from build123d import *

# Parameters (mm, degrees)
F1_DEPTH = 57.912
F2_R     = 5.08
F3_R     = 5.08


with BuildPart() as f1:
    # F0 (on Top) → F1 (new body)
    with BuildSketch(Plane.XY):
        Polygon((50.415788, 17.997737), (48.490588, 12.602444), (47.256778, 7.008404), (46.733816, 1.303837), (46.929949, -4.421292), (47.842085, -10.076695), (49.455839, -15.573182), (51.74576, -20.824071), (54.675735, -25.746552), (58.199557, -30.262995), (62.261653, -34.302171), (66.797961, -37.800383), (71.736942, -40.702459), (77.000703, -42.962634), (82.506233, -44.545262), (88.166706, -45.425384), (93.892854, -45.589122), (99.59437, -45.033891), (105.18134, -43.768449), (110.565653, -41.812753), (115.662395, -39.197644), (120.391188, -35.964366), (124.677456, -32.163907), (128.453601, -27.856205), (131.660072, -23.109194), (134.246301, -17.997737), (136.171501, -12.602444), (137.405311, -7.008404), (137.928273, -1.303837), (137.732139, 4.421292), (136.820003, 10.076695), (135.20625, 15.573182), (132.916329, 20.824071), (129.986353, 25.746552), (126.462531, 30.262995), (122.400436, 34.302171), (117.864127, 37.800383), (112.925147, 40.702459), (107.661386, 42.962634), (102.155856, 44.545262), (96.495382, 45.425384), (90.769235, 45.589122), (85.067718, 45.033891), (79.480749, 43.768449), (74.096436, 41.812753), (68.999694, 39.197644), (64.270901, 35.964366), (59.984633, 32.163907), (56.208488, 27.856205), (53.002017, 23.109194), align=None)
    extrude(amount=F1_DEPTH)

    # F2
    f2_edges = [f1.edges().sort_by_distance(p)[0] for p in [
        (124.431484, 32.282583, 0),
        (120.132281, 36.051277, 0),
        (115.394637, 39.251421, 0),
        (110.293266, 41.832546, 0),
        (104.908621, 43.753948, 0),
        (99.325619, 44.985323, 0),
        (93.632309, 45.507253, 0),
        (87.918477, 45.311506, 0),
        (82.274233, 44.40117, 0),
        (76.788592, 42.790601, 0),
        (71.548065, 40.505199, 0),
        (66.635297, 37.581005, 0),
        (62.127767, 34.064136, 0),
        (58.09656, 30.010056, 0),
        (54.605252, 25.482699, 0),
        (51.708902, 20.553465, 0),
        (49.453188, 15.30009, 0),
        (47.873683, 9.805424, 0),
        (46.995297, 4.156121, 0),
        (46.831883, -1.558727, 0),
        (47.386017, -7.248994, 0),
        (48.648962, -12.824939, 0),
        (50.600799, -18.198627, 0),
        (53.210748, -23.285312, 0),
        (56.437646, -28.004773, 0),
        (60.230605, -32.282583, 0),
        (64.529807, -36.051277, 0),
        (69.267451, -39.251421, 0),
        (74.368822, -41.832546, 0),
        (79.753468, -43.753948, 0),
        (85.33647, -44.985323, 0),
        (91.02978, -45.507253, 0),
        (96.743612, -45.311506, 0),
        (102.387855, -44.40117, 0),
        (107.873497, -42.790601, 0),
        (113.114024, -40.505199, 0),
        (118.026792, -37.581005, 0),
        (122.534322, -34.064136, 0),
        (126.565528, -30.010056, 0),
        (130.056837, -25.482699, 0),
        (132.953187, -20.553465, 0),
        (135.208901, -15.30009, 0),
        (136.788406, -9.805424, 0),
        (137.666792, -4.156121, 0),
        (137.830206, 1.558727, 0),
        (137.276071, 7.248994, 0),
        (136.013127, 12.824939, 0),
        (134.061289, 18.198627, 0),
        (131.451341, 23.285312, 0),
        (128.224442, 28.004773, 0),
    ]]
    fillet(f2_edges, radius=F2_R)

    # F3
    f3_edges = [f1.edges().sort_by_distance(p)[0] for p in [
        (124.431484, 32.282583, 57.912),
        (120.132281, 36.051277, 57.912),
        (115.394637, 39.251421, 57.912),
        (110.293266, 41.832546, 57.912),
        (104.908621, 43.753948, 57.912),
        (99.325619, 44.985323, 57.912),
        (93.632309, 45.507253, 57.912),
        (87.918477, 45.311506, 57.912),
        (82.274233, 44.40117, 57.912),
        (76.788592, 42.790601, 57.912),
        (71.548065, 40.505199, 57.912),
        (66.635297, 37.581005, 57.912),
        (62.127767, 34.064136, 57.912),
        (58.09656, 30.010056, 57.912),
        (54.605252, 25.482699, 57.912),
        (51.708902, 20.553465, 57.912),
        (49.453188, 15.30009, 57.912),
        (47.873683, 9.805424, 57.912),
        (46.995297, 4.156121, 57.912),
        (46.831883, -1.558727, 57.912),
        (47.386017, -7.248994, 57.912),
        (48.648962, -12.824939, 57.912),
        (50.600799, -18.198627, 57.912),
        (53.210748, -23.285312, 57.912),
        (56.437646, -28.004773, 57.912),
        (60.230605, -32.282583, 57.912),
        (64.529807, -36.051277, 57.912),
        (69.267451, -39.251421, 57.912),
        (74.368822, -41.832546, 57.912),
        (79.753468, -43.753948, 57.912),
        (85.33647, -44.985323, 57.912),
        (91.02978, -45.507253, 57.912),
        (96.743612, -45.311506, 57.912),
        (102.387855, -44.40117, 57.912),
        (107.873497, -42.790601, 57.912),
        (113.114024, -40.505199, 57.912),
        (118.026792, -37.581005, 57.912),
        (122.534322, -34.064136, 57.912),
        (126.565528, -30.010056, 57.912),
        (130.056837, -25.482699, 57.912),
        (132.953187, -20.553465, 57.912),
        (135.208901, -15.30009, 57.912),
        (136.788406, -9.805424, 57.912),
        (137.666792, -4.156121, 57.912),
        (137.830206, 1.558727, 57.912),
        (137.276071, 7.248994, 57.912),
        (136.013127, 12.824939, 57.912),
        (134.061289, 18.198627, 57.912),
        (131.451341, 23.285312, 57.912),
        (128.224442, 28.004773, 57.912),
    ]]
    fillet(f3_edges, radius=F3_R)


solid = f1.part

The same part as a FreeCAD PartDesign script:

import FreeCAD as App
import Part
import Sketcher

V = App.Vector
Q = App.Units.Quantity


def edges_at(feature, points):
    """Names of the edges that pass closest to the given points."""
    edges = feature.Shape.Edges
    near = lambda p: min(range(len(edges)), key=lambda i: edges[i].distToShape(Part.Vertex(*p))[0])
    return sorted({f"Edge{near(p) + 1}" for p in points})

doc = App.newDocument("Part")
body = doc.addObject("PartDesign::Body", "Body")

# Sketch on XY plane
sketch1 = doc.addObject("Sketcher::SketchObject", "Sketch")
body.addObject(sketch1)
sketch1.AttachmentSupport = (doc.XY_Plane, [""])
sketch1.MapMode = "FlatFace"
sketch1.addGeometry([
    Part.LineSegment(V(50.415788, 17.997737, 0), V(48.490588, 12.602444, 0)),  # 0
    Part.LineSegment(V(48.490588, 12.602444, 0), V(47.256778, 7.008404, 0)),  # 1
    Part.LineSegment(V(47.256778, 7.008404, 0), V(46.733816, 1.303837, 0)),  # 2
    Part.LineSegment(V(46.733816, 1.303837, 0), V(46.929949, -4.421292, 0)),  # 3
    Part.LineSegment(V(46.929949, -4.421292, 0), V(47.842085, -10.076695, 0)),  # 4
    Part.LineSegment(V(47.842085, -10.076695, 0), V(49.455839, -15.573182, 0)),  # 5
    Part.LineSegment(V(49.455839, -15.573182, 0), V(51.74576, -20.824071, 0)),  # 6
    Part.LineSegment(V(51.74576, -20.824071, 0), V(54.675735, -25.746552, 0)),  # 7
    Part.LineSegment(V(54.675735, -25.746552, 0), V(58.199557, -30.262995, 0)),  # 8
    Part.LineSegment(V(58.199557, -30.262995, 0), V(62.261653, -34.302171, 0)),  # 9
    Part.LineSegment(V(62.261653, -34.302171, 0), V(66.797961, -37.800383, 0)),  # 10
    Part.LineSegment(V(66.797961, -37.800383, 0), V(71.736942, -40.702459, 0)),  # 11
    Part.LineSegment(V(71.736942, -40.702459, 0), V(77.000703, -42.962634, 0)),  # 12
    Part.LineSegment(V(77.000703, -42.962634, 0), V(82.506233, -44.545262, 0)),  # 13
    Part.LineSegment(V(82.506233, -44.545262, 0), V(88.166706, -45.425384, 0)),  # 14
    Part.LineSegment(V(88.166706, -45.425384, 0), V(93.892854, -45.589122, 0)),  # 15
    Part.LineSegment(V(93.892854, -45.589122, 0), V(99.59437, -45.033891, 0)),  # 16
    Part.LineSegment(V(99.59437, -45.033891, 0), V(105.18134, -43.768449, 0)),  # 17
    Part.LineSegment(V(105.18134, -43.768449, 0), V(110.565653, -41.812753, 0)),  # 18
    Part.LineSegment(V(110.565653, -41.812753, 0), V(115.662395, -39.197644, 0)),  # 19
    Part.LineSegment(V(115.662395, -39.197644, 0), V(120.391188, -35.964366, 0)),  # 20
    Part.LineSegment(V(120.391188, -35.964366, 0), V(124.677456, -32.163907, 0)),  # 21
    Part.LineSegment(V(124.677456, -32.163907, 0), V(128.453601, -27.856205, 0)),  # 22
    Part.LineSegment(V(128.453601, -27.856205, 0), V(131.660072, -23.109194, 0)),  # 23
    Part.LineSegment(V(131.660072, -23.109194, 0), V(134.246301, -17.997737, 0)),  # 24
    Part.LineSegment(V(134.246301, -17.997737, 0), V(136.171501, -12.602444, 0)),  # 25
    Part.LineSegment(V(136.171501, -12.602444, 0), V(137.405311, -7.008404, 0)),  # 26
    Part.LineSegment(V(137.405311, -7.008404, 0), V(137.928273, -1.303837, 0)),  # 27
    Part.LineSegment(V(137.928273, -1.303837, 0), V(137.732139, 4.421292, 0)),  # 28
    Part.LineSegment(V(137.732139, 4.421292, 0), V(136.820003, 10.076695, 0)),  # 29
    Part.LineSegment(V(136.820003, 10.076695, 0), V(135.20625, 15.573182, 0)),  # 30
    Part.LineSegment(V(135.20625, 15.573182, 0), V(132.916329, 20.824071, 0)),  # 31
    Part.LineSegment(V(132.916329, 20.824071, 0), V(129.986353, 25.746552, 0)),  # 32
    Part.LineSegment(V(129.986353, 25.746552, 0), V(126.462531, 30.262995, 0)),  # 33
    Part.LineSegment(V(126.462531, 30.262995, 0), V(122.400436, 34.302171, 0)),  # 34
    Part.LineSegment(V(122.400436, 34.302171, 0), V(117.864127, 37.800383, 0)),  # 35
    Part.LineSegment(V(117.864127, 37.800383, 0), V(112.925147, 40.702459, 0)),  # 36
    Part.LineSegment(V(112.925147, 40.702459, 0), V(107.661386, 42.962634, 0)),  # 37
    Part.LineSegment(V(107.661386, 42.962634, 0), V(102.155856, 44.545262, 0)),  # 38
    Part.LineSegment(V(102.155856, 44.545262, 0), V(96.495382, 45.425384, 0)),  # 39
    Part.LineSegment(V(96.495382, 45.425384, 0), V(90.769235, 45.589122, 0)),  # 40
    Part.LineSegment(V(90.769235, 45.589122, 0), V(85.067718, 45.033891, 0)),  # 41
    Part.LineSegment(V(85.067718, 45.033891, 0), V(79.480749, 43.768449, 0)),  # 42
    Part.LineSegment(V(79.480749, 43.768449, 0), V(74.096436, 41.812753, 0)),  # 43
    Part.LineSegment(V(74.096436, 41.812753, 0), V(68.999694, 39.197644, 0)),  # 44
    Part.LineSegment(V(68.999694, 39.197644, 0), V(64.270901, 35.964366, 0)),  # 45
    Part.LineSegment(V(64.270901, 35.964366, 0), V(59.984633, 32.163907, 0)),  # 46
    Part.LineSegment(V(59.984633, 32.163907, 0), V(56.208488, 27.856205, 0)),  # 47
    Part.LineSegment(V(56.208488, 27.856205, 0), V(53.002017, 23.109194, 0)),  # 48
    Part.LineSegment(V(53.002017, 23.109194, 0), V(50.415788, 17.997737, 0)),  # 49
], False)
sketch1.addConstraint([
    Sketcher.Constraint("Coincident", 0, 2, 1, 1),
    Sketcher.Constraint("Coincident", 1, 2, 2, 1),
    Sketcher.Constraint("Coincident", 2, 2, 3, 1),
    Sketcher.Constraint("Coincident", 3, 2, 4, 1),
    Sketcher.Constraint("Coincident", 4, 2, 5, 1),
    Sketcher.Constraint("Coincident", 5, 2, 6, 1),
    Sketcher.Constraint("Coincident", 6, 2, 7, 1),
    Sketcher.Constraint("Coincident", 7, 2, 8, 1),
    Sketcher.Constraint("Coincident", 8, 2, 9, 1),
    Sketcher.Constraint("Coincident", 9, 2, 10, 1),
    Sketcher.Constraint("Coincident", 10, 2, 11, 1),
    Sketcher.Constraint("Coincident", 11, 2, 12, 1),
    Sketcher.Constraint("Coincident", 12, 2, 13, 1),
    Sketcher.Constraint("Coincident", 13, 2, 14, 1),
    Sketcher.Constraint("Coincident", 14, 2, 15, 1),
    Sketcher.Constraint("Coincident", 15, 2, 16, 1),
    Sketcher.Constraint("Coincident", 16, 2, 17, 1),
    Sketcher.Constraint("Coincident", 17, 2, 18, 1),
    Sketcher.Constraint("Coincident", 18, 2, 19, 1),
    Sketcher.Constraint("Coincident", 19, 2, 20, 1),
    Sketcher.Constraint("Coincident", 20, 2, 21, 1),
    Sketcher.Constraint("Coincident", 21, 2, 22, 1),
    Sketcher.Constraint("Coincident", 22, 2, 23, 1),
    Sketcher.Constraint("Coincident", 23, 2, 24, 1),
    Sketcher.Constraint("Coincident", 24, 2, 25, 1),
    Sketcher.Constraint("Coincident", 25, 2, 26, 1),
    Sketcher.Constraint("Coincident", 26, 2, 27, 1),
    Sketcher.Constraint("Coincident", 27, 2, 28, 1),
    Sketcher.Constraint("Coincident", 28, 2, 29, 1),
    Sketcher.Constraint("Coincident", 29, 2, 30, 1),
    Sketcher.Constraint("Coincident", 30, 2, 31, 1),
    Sketcher.Constraint("Coincident", 31, 2, 32, 1),
    Sketcher.Constraint("Coincident", 32, 2, 33, 1),
    Sketcher.Constraint("Coincident", 33, 2, 34, 1),
    Sketcher.Constraint("Coincident", 34, 2, 35, 1),
    Sketcher.Constraint("Coincident", 35, 2, 36, 1),
    Sketcher.Constraint("Coincident", 36, 2, 37, 1),
    Sketcher.Constraint("Coincident", 37, 2, 38, 1),
    Sketcher.Constraint("Coincident", 38, 2, 39, 1),
    Sketcher.Constraint("Coincident", 39, 2, 40, 1),
    Sketcher.Constraint("Coincident", 40, 2, 41, 1),
    Sketcher.Constraint("Coincident", 41, 2, 42, 1),
    Sketcher.Constraint("Coincident", 42, 2, 43, 1),
    Sketcher.Constraint("Coincident", 43, 2, 44, 1),
    Sketcher.Constraint("Coincident", 44, 2, 45, 1),
    Sketcher.Constraint("Coincident", 45, 2, 46, 1),
    Sketcher.Constraint("Coincident", 46, 2, 47, 1),
    Sketcher.Constraint("Coincident", 47, 2, 48, 1),
    Sketcher.Constraint("Coincident", 48, 2, 49, 1),
    Sketcher.Constraint("Coincident", 49, 2, 0, 1),
    Sketcher.Constraint("DistanceX", -1, 1, 22, 2, Q("128.453601 mm")),
    Sketcher.Constraint("DistanceX", -1, 1, 24, 2, Q("134.246301 mm")),
    Sketcher.Constraint("DistanceX", -1, 1, 25, 2, Q("136.171501 mm")),
    Sketcher.Constraint("DistanceX", -1, 1, 45, 2, Q("64.270901 mm")),
    Sketcher.Constraint("DistanceY", 4, 2, 1, 2, Q("17.085099 mm")),
    Sketcher.Constraint("DistanceY", 8, 2, 4, 2, Q("20.1863 mm")),
    Sketcher.Constraint("DistanceY", 9, 2, 6, 2, Q("13.4781 mm")),
    Sketcher.Constraint("DistanceX", 6, 2, 10, 2, Q("15.052201 mm")),
    Sketcher.Constraint("DistanceY", 10, 2, 5, 2, Q("22.227201 mm")),
    Sketcher.Constraint("DistanceY", 14, 2, 10, 2, Q("7.625001 mm")),
    Sketcher.Constraint("DistanceX", 15, 2, 18, 2, Q("16.672799 mm")),
    Sketcher.Constraint("DistanceY", 22, 2, 26, 2, Q("20.847801 mm")),
    Sketcher.Constraint("DistanceY", 24, 2, 27, 2, Q("16.6939 mm")),
    Sketcher.Constraint("DistanceX", 23, 2, 27, 2, Q("6.268201 mm")),
    Sketcher.Constraint("DistanceY", 26, 2, 29, 2, Q("17.085099 mm")),
    Sketcher.Constraint("DistanceY", 29, 2, 33, 2, Q("20.1863 mm")),
    Sketcher.Constraint("DistanceY", 31, 2, 34, 2, Q("13.4781 mm")),
    Sketcher.Constraint("DistanceX", 35, 2, 31, 2, Q("15.052202 mm")),
    Sketcher.Constraint("DistanceY", 30, 2, 35, 2, Q("22.227201 mm")),
    Sketcher.Constraint("DistanceY", 35, 2, 39, 2, Q("7.625001 mm")),
    Sketcher.Constraint("DistanceX", 43, 2, 40, 2, Q("16.672799 mm")),
    Sketcher.Constraint("DistanceX", 0, 2, 47, 2, Q("7.7179 mm")),
    Sketcher.Constraint("DistanceX", 0, 2, 49, 2, Q("1.9252 mm")),
    Sketcher.Constraint("Distance", 0, Q("5.728489 mm")),
    Sketcher.Constraint("Distance", 4, Q("5.728488 mm")),
    Sketcher.Constraint("Distance", 8, Q("5.728488 mm")),
    Sketcher.Constraint("Distance", 10, Q("5.728488 mm")),
    Sketcher.Constraint("Distance", 11, Q("5.728488 mm")),
    Sketcher.Constraint("Distance", 15, Q("5.728489 mm")),
    Sketcher.Constraint("Distance", 17, Q("5.728488 mm")),
    Sketcher.Constraint("Distance", 21, Q("5.728489 mm")),
    Sketcher.Constraint("Distance", 25, Q("5.728489 mm")),
    Sketcher.Constraint("Distance", 29, Q("5.728488 mm")),
    Sketcher.Constraint("Distance", 32, Q("5.728488 mm")),
    Sketcher.Constraint("Distance", 33, Q("5.728488 mm")),
    Sketcher.Constraint("Distance", 35, Q("5.728489 mm")),
    Sketcher.Constraint("Distance", 39, Q("5.728489 mm")),
    Sketcher.Constraint("Distance", 41, Q("5.728488 mm")),
    Sketcher.Constraint("Distance", 46, Q("5.728489 mm")),
    Sketcher.Constraint("DistanceX", -1, 1, 0, 2, Q("48.490588 mm")),
    Sketcher.Constraint("DistanceX", -1, 1, 3, 2, Q("46.929949 mm")),
    Sketcher.Constraint("DistanceX", -1, 1, 5, 2, Q("49.455839 mm")),
    Sketcher.Constraint("DistanceY", 5, 2, -1, 1, Q("15.573182 mm")),
    Sketcher.Constraint("DistanceX", -1, 1, 6, 2, Q("51.74576 mm")),
    Sketcher.Constraint("DistanceY", 6, 2, -1, 1, Q("20.824071 mm")),
    Sketcher.Constraint("DistanceX", -1, 1, 11, 2, Q("71.736942 mm")),
    Sketcher.Constraint("DistanceX", -1, 1, 16, 2, Q("99.59437 mm")),
    Sketcher.Constraint("DistanceY", 16, 2, -1, 1, Q("45.033891 mm")),
    Sketcher.Constraint("DistanceX", -1, 1, 17, 2, Q("105.18134 mm")),
    Sketcher.Constraint("DistanceX", -1, 1, 20, 2, Q("120.391188 mm")),
    Sketcher.Constraint("DistanceX", -1, 1, 26, 2, Q("137.405311 mm")),
    Sketcher.Constraint("DistanceX", -1, 1, 28, 2, Q("137.732139 mm")),
    Sketcher.Constraint("DistanceX", -1, 1, 30, 2, Q("135.20625 mm")),
    Sketcher.Constraint("DistanceY", -1, 1, 30, 2, Q("15.573182 mm")),
    Sketcher.Constraint("DistanceX", -1, 1, 31, 2, Q("132.916329 mm")),
    Sketcher.Constraint("DistanceY", -1, 1, 31, 2, Q("20.824071 mm")),
    Sketcher.Constraint("DistanceX", -1, 1, 33, 2, Q("126.462531 mm")),
    Sketcher.Constraint("DistanceY", -1, 1, 36, 2, Q("40.702459 mm")),
    Sketcher.Constraint("DistanceX", -1, 1, 41, 2, Q("85.067718 mm")),
    Sketcher.Constraint("DistanceY", -1, 1, 41, 2, Q("45.033891 mm")),
    Sketcher.Constraint("DistanceX", -1, 1, 42, 2, Q("79.480749 mm")),
    Sketcher.Constraint("DistanceY", -1, 1, 42, 2, Q("43.768449 mm")),
    Sketcher.Constraint("DistanceX", 1, 2, 0, 2, Q("1.23381 mm")),
    Sketcher.Constraint("DistanceY", 1, 2, 0, 2, Q("5.59404 mm")),
    Sketcher.Constraint("DistanceX", 2, 2, 1, 2, Q("0.522962 mm")),
    Sketcher.Constraint("DistanceY", 3, 2, 2, 2, Q("5.725129 mm")),
    Sketcher.Constraint("DistanceX", 2, 2, 4, 2, Q("1.108269 mm")),
    Sketcher.Constraint("DistanceY", 5, 2, 3, 2, Q("11.15189 mm")),
    Sketcher.Constraint("DistanceY", 7, 2, 6, 2, Q("4.922481 mm")),
    Sketcher.Constraint("DistanceX", 4, 2, 7, 2, Q("6.83365 mm")),
    Sketcher.Constraint("DistanceX", 11, 2, 12, 2, Q("5.263761 mm")),
    Sketcher.Constraint("DistanceY", 12, 2, 10, 2, Q("5.162251 mm")),
    Sketcher.Constraint("DistanceX", 12, 2, 13, 2, Q("5.50553 mm")),
    Sketcher.Constraint("DistanceY", 13, 2, 10, 2, Q("6.744879 mm")),
    Sketcher.Constraint("DistanceY", 15, 2, 14, 2, Q("0.163738 mm")),
    Sketcher.Constraint("DistanceX", 13, 2, 15, 2, Q("11.386621 mm")),
    Sketcher.Constraint("DistanceY", 15, 2, 18, 2, Q("3.776369 mm")),
    Sketcher.Constraint("DistanceY", 18, 2, 19, 2, Q("2.615109 mm")),
    Sketcher.Constraint("DistanceX", 15, 2, 19, 2, Q("21.769541 mm")),
    Sketcher.Constraint("DistanceX", 20, 2, 21, 2, Q("4.286268 mm")),
    Sketcher.Constraint("DistanceY", 17, 2, 21, 2, Q("11.604542 mm")),
    Sketcher.Constraint("DistanceY", 20, 2, 22, 2, Q("8.108161 mm")),
    Sketcher.Constraint("DistanceX", 22, 2, 23, 2, Q("3.206471 mm")),
    Sketcher.Constraint("DistanceY", 22, 2, 23, 2, Q("4.747011 mm")),
    Sketcher.Constraint("DistanceY", 21, 2, 24, 2, Q("14.16617 mm")),
    Sketcher.Constraint("DistanceY", 27, 2, 28, 2, Q("5.725129 mm")),
    Sketcher.Constraint("DistanceX", 36, 2, 35, 2, Q("4.93898 mm")),
    Sketcher.Constraint("DistanceX", 37, 2, 36, 2, Q("5.263761 mm")),
    Sketcher.Constraint("DistanceY", 35, 2, 37, 2, Q("5.162251 mm")),
    Sketcher.Constraint("DistanceX", 38, 2, 37, 2, Q("5.50553 mm")),
    Sketcher.Constraint("DistanceY", 35, 2, 38, 2, Q("6.744879 mm")),
    Sketcher.Constraint("DistanceY", 39, 2, 40, 2, Q("0.163738 mm")),
    Sketcher.Constraint("DistanceY", 43, 2, 40, 2, Q("3.776369 mm")),
    Sketcher.Constraint("DistanceX", 44, 2, 43, 2, Q("5.096742 mm")),
    Sketcher.Constraint("DistanceY", 44, 2, 43, 2, Q("2.615109 mm")),
    Sketcher.Constraint("DistanceY", 46, 2, 45, 2, Q("3.800459 mm")),
    Sketcher.Constraint("DistanceY", 46, 2, 42, 2, Q("11.604542 mm")),
    Sketcher.Constraint("DistanceY", 47, 2, 45, 2, Q("8.108161 mm")),
    Sketcher.Constraint("DistanceX", 48, 2, 47, 2, Q("3.206471 mm")),
    Sketcher.Constraint("DistanceY", 48, 2, 47, 2, Q("4.747011 mm")),
])
pad1 = doc.addObject("PartDesign::Pad", "Pad")
body.addObject(pad1)
pad1.Profile = sketch1
pad1.Length = Q("2.28 in")
doc.recompute()

fillet = doc.addObject("PartDesign::Fillet", "Fillet")
body.addObject(fillet)
fillet.Base = (pad1, edges_at(pad1, [
    (124.431, 32.283, 0),
    (120.132, 36.051, 0),
    (115.395, 39.251, 0),
    (110.293, 41.833, 0),
    (104.909, 43.754, 0),
    (99.326, 44.985, 0),
    (93.632, 45.507, 0),
    (87.918, 45.312, 0),
    (82.274, 44.401, 0),
    (76.789, 42.791, 0),
    (71.548, 40.505, 0),
    (66.635, 37.581, 0),
    (62.128, 34.064, 0),
    (58.097, 30.01, 0),
    (54.605, 25.483, 0),
    (51.709, 20.553, 0),
    (49.453, 15.3, 0),
    (47.874, 9.805, 0),
    (46.995, 4.156, 0),
    (46.832, -1.559, 0),
    (47.386, -7.249, 0),
    (48.649, -12.825, 0),
    (50.601, -18.199, 0),
    (53.211, -23.285, 0),
    (56.438, -28.005, 0),
    (60.231, -32.283, 0),
    (64.53, -36.051, 0),
    (69.267, -39.251, 0),
    (74.369, -41.833, 0),
    (79.753, -43.754, 0),
    (85.336, -44.985, 0),
    (91.03, -45.507, 0),
    (96.744, -45.312, 0),
    (102.388, -44.401, 0),
    (107.873, -42.791, 0),
    (113.114, -40.505, 0),
    (118.027, -37.581, 0),
    (122.534, -34.064, 0),
    (126.566, -30.01, 0),
    (130.057, -25.483, 0),
    (132.953, -20.553, 0),
    (135.209, -15.3, 0),
    (136.788, -9.805, 0),
    (137.667, -4.156, 0),
    (137.83, 1.559, 0),
    (137.276, 7.249, 0),
    (136.013, 12.825, 0),
    (134.061, 18.199, 0),
    (131.451, 23.285, 0),
    (128.224, 28.005, 0),
]))
fillet.Radius = Q("0.2 in")
doc.recompute()

fillet2 = doc.addObject("PartDesign::Fillet", "Fillet001")
body.addObject(fillet2)
fillet2.Base = (fillet, edges_at(fillet, [
    (124.431, 32.283, 57.912),
    (120.132, 36.051, 57.912),
    (115.395, 39.251, 57.912),
    (110.293, 41.833, 57.912),
    (104.909, 43.754, 57.912),
    (99.326, 44.985, 57.912),
    (93.632, 45.507, 57.912),
    (87.918, 45.312, 57.912),
    (82.274, 44.401, 57.912),
    (76.789, 42.791, 57.912),
    (71.548, 40.505, 57.912),
    (66.635, 37.581, 57.912),
    (62.128, 34.064, 57.912),
    (58.097, 30.01, 57.912),
    (54.605, 25.483, 57.912),
    (51.709, 20.553, 57.912),
    (49.453, 15.3, 57.912),
    (47.874, 9.805, 57.912),
    (46.995, 4.156, 57.912),
    (46.832, -1.559, 57.912),
    (47.386, -7.249, 57.912),
    (48.649, -12.825, 57.912),
    (50.601, -18.199, 57.912),
    (53.211, -23.285, 57.912),
    (56.438, -28.005, 57.912),
    (60.231, -32.283, 57.912),
    (64.53, -36.051, 57.912),
    (69.267, -39.251, 57.912),
    (74.369, -41.833, 57.912),
    (79.753, -43.754, 57.912),
    (85.336, -44.985, 57.912),
    (91.03, -45.507, 57.912),
    (96.744, -45.312, 57.912),
    (102.388, -44.401, 57.912),
    (107.873, -42.791, 57.912),
    (113.114, -40.505, 57.912),
    (118.027, -37.581, 57.912),
    (122.534, -34.064, 57.912),
    (126.566, -30.01, 57.912),
    (130.057, -25.483, 57.912),
    (132.953, -20.553, 57.912),
    (135.209, -15.3, 57.912),
    (136.788, -9.805, 57.912),
    (137.667, -4.156, 57.912),
    (137.83, 1.559, 57.912),
    (137.276, 7.249, 57.912),
    (136.013, 12.825, 57.912),
    (134.061, 18.199, 57.912),
    (131.451, 23.285, 57.912),
    (128.224, 28.005, 57.912),
]))
fillet2.Radius = Q("0.2 in")

doc.recompute()
